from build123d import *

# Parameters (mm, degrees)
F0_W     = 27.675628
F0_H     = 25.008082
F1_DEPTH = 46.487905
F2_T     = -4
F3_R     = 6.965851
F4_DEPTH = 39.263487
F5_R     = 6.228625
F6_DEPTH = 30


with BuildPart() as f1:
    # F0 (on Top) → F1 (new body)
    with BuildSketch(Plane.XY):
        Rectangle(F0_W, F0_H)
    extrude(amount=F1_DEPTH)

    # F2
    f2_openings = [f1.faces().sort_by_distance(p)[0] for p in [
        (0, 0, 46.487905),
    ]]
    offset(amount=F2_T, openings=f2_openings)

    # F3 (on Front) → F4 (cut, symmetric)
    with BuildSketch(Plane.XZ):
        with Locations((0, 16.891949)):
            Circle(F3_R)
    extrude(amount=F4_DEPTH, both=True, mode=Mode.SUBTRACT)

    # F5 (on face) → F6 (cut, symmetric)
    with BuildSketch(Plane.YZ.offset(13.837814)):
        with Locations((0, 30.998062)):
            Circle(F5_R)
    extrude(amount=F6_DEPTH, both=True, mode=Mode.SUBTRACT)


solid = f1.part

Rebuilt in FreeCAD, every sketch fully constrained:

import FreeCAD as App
import Part
import Sketcher
from FreeCAD import Vector


def faces_at(feature, points):
    """Names of the faces that lie closest to the given points."""
    faces = feature.Shape.Faces
    near = lambda p: min(range(len(faces)), key=lambda i: faces[i].distToShape(Part.Vertex(*p))[0])
    return sorted({f"Face{near(p) + 1}" for p in points})


def add_polygon(sketch, points):
    """Adds a closed chain of lines whose ends are joined by coincident constraints."""
    first, n = sketch.GeometryCount, len(points)
    for a, b in zip(points, points[1:] + points[:1]):
        sketch.addGeometry(Part.LineSegment(App.Vector(*a, 0), App.Vector(*b, 0)), False)
    for i in range(n):
        sketch.addConstraint(Sketcher.Constraint("Coincident", first + i, 2, first + (i + 1) % n, 1))

doc = App.newDocument("Part")
body = doc.addObject("PartDesign::Body", "Body")

# Sketch on XY plane
sketch1 = doc.addObject("Sketcher::SketchObject", "Sketch")
body.addObject(sketch1)
sketch1.AttachmentSupport = (doc.XY_Plane, [""])
sketch1.MapMode = "FlatFace"
add_polygon(sketch1, [(-13.837814, 12.504041), (-13.837814, -12.504041), (13.837814, -12.504041), (13.837814, 12.504041)])  # lines 0-3
sketch1.addConstraint([
    Sketcher.Constraint("Vertical", 0),
    Sketcher.Constraint("Horizontal", 1),
    Sketcher.Constraint("Vertical", 2),
    Sketcher.Constraint("Horizontal", 3),
    Sketcher.Constraint("Symmetric", 0, 2, 2, 2, -1, 1),
    Sketcher.Constraint("DistanceX", 1, 1, 1, 2, 27.675628),
    Sketcher.Constraint("DistanceY", 0, 2, 0, 1, 25.008082),
])
pad1 = doc.addObject("PartDesign::Pad", "Pad")
body.addObject(pad1)
pad1.Profile = sketch1
pad1.Length = 46.487905
doc.recompute()

thickness = doc.addObject("PartDesign::Thickness", "Thickness")
body.addObject(thickness)
thickness.Base = (pad1, faces_at(pad1, [(0, 0, 46.488)]))
thickness.Value = 4
thickness.Reversed = True
thickness.Join = "Arc"

# Sketch on XZ plane
sketch2 = doc.addObject("Sketcher::SketchObject", "Sketch001")
body.addObject(sketch2)
sketch2.AttachmentSupport = (doc.XZ_Plane, [""])
sketch2.MapMode = "FlatFace"
sketch2.addGeometry(Part.Circle(Vector(0, 16.891949, 0), Vector(0, 0, 1), 6.965851), False)
sketch2.addConstraint([
    Sketcher.Constraint("PointOnObject", 0, 3, -2),
    Sketcher.Constraint("Diameter", 0, 13.931702),
    Sketcher.Constraint("DistanceY", -1, 1, 0, 3, 16.891949),
])
pocket1 = doc.addObject("PartDesign::Pocket", "Pocket")
body.addObject(pocket1)
pocket1.Profile = sketch2
pocket1.Length = 78.526974
pocket1.Midplane = True

# Sketch on YZ plane
sketch3 = doc.addObject("Sketcher::SketchObject", "Sketch002")
body.addObject(sketch3)
sketch3.AttachmentSupport = (doc.YZ_Plane, [""])
sketch3.MapMode = "FlatFace"
sketch3.AttachmentOffset = App.Placement(Vector(0, 0, 13.837814), App.Rotation())
sketch3.addGeometry(Part.Circle(Vector(0, 30.998062, 0), Vector(0, 0, 1), 6.228625), False)
sketch3.addConstraint([
    Sketcher.Constraint("PointOnObject", 0, 3, -2),
    Sketcher.Constraint("Diameter", 0, 12.45725),
    Sketcher.Constraint("DistanceY", -1, 1, 0, 3, 30.998062),
])
pocket2 = doc.addObject("PartDesign::Pocket", "Pocket001")
body.addObject(pocket2)
pocket2.Profile = sketch3
pocket2.Length = 60
pocket2.Midplane = True

doc.recompute()
